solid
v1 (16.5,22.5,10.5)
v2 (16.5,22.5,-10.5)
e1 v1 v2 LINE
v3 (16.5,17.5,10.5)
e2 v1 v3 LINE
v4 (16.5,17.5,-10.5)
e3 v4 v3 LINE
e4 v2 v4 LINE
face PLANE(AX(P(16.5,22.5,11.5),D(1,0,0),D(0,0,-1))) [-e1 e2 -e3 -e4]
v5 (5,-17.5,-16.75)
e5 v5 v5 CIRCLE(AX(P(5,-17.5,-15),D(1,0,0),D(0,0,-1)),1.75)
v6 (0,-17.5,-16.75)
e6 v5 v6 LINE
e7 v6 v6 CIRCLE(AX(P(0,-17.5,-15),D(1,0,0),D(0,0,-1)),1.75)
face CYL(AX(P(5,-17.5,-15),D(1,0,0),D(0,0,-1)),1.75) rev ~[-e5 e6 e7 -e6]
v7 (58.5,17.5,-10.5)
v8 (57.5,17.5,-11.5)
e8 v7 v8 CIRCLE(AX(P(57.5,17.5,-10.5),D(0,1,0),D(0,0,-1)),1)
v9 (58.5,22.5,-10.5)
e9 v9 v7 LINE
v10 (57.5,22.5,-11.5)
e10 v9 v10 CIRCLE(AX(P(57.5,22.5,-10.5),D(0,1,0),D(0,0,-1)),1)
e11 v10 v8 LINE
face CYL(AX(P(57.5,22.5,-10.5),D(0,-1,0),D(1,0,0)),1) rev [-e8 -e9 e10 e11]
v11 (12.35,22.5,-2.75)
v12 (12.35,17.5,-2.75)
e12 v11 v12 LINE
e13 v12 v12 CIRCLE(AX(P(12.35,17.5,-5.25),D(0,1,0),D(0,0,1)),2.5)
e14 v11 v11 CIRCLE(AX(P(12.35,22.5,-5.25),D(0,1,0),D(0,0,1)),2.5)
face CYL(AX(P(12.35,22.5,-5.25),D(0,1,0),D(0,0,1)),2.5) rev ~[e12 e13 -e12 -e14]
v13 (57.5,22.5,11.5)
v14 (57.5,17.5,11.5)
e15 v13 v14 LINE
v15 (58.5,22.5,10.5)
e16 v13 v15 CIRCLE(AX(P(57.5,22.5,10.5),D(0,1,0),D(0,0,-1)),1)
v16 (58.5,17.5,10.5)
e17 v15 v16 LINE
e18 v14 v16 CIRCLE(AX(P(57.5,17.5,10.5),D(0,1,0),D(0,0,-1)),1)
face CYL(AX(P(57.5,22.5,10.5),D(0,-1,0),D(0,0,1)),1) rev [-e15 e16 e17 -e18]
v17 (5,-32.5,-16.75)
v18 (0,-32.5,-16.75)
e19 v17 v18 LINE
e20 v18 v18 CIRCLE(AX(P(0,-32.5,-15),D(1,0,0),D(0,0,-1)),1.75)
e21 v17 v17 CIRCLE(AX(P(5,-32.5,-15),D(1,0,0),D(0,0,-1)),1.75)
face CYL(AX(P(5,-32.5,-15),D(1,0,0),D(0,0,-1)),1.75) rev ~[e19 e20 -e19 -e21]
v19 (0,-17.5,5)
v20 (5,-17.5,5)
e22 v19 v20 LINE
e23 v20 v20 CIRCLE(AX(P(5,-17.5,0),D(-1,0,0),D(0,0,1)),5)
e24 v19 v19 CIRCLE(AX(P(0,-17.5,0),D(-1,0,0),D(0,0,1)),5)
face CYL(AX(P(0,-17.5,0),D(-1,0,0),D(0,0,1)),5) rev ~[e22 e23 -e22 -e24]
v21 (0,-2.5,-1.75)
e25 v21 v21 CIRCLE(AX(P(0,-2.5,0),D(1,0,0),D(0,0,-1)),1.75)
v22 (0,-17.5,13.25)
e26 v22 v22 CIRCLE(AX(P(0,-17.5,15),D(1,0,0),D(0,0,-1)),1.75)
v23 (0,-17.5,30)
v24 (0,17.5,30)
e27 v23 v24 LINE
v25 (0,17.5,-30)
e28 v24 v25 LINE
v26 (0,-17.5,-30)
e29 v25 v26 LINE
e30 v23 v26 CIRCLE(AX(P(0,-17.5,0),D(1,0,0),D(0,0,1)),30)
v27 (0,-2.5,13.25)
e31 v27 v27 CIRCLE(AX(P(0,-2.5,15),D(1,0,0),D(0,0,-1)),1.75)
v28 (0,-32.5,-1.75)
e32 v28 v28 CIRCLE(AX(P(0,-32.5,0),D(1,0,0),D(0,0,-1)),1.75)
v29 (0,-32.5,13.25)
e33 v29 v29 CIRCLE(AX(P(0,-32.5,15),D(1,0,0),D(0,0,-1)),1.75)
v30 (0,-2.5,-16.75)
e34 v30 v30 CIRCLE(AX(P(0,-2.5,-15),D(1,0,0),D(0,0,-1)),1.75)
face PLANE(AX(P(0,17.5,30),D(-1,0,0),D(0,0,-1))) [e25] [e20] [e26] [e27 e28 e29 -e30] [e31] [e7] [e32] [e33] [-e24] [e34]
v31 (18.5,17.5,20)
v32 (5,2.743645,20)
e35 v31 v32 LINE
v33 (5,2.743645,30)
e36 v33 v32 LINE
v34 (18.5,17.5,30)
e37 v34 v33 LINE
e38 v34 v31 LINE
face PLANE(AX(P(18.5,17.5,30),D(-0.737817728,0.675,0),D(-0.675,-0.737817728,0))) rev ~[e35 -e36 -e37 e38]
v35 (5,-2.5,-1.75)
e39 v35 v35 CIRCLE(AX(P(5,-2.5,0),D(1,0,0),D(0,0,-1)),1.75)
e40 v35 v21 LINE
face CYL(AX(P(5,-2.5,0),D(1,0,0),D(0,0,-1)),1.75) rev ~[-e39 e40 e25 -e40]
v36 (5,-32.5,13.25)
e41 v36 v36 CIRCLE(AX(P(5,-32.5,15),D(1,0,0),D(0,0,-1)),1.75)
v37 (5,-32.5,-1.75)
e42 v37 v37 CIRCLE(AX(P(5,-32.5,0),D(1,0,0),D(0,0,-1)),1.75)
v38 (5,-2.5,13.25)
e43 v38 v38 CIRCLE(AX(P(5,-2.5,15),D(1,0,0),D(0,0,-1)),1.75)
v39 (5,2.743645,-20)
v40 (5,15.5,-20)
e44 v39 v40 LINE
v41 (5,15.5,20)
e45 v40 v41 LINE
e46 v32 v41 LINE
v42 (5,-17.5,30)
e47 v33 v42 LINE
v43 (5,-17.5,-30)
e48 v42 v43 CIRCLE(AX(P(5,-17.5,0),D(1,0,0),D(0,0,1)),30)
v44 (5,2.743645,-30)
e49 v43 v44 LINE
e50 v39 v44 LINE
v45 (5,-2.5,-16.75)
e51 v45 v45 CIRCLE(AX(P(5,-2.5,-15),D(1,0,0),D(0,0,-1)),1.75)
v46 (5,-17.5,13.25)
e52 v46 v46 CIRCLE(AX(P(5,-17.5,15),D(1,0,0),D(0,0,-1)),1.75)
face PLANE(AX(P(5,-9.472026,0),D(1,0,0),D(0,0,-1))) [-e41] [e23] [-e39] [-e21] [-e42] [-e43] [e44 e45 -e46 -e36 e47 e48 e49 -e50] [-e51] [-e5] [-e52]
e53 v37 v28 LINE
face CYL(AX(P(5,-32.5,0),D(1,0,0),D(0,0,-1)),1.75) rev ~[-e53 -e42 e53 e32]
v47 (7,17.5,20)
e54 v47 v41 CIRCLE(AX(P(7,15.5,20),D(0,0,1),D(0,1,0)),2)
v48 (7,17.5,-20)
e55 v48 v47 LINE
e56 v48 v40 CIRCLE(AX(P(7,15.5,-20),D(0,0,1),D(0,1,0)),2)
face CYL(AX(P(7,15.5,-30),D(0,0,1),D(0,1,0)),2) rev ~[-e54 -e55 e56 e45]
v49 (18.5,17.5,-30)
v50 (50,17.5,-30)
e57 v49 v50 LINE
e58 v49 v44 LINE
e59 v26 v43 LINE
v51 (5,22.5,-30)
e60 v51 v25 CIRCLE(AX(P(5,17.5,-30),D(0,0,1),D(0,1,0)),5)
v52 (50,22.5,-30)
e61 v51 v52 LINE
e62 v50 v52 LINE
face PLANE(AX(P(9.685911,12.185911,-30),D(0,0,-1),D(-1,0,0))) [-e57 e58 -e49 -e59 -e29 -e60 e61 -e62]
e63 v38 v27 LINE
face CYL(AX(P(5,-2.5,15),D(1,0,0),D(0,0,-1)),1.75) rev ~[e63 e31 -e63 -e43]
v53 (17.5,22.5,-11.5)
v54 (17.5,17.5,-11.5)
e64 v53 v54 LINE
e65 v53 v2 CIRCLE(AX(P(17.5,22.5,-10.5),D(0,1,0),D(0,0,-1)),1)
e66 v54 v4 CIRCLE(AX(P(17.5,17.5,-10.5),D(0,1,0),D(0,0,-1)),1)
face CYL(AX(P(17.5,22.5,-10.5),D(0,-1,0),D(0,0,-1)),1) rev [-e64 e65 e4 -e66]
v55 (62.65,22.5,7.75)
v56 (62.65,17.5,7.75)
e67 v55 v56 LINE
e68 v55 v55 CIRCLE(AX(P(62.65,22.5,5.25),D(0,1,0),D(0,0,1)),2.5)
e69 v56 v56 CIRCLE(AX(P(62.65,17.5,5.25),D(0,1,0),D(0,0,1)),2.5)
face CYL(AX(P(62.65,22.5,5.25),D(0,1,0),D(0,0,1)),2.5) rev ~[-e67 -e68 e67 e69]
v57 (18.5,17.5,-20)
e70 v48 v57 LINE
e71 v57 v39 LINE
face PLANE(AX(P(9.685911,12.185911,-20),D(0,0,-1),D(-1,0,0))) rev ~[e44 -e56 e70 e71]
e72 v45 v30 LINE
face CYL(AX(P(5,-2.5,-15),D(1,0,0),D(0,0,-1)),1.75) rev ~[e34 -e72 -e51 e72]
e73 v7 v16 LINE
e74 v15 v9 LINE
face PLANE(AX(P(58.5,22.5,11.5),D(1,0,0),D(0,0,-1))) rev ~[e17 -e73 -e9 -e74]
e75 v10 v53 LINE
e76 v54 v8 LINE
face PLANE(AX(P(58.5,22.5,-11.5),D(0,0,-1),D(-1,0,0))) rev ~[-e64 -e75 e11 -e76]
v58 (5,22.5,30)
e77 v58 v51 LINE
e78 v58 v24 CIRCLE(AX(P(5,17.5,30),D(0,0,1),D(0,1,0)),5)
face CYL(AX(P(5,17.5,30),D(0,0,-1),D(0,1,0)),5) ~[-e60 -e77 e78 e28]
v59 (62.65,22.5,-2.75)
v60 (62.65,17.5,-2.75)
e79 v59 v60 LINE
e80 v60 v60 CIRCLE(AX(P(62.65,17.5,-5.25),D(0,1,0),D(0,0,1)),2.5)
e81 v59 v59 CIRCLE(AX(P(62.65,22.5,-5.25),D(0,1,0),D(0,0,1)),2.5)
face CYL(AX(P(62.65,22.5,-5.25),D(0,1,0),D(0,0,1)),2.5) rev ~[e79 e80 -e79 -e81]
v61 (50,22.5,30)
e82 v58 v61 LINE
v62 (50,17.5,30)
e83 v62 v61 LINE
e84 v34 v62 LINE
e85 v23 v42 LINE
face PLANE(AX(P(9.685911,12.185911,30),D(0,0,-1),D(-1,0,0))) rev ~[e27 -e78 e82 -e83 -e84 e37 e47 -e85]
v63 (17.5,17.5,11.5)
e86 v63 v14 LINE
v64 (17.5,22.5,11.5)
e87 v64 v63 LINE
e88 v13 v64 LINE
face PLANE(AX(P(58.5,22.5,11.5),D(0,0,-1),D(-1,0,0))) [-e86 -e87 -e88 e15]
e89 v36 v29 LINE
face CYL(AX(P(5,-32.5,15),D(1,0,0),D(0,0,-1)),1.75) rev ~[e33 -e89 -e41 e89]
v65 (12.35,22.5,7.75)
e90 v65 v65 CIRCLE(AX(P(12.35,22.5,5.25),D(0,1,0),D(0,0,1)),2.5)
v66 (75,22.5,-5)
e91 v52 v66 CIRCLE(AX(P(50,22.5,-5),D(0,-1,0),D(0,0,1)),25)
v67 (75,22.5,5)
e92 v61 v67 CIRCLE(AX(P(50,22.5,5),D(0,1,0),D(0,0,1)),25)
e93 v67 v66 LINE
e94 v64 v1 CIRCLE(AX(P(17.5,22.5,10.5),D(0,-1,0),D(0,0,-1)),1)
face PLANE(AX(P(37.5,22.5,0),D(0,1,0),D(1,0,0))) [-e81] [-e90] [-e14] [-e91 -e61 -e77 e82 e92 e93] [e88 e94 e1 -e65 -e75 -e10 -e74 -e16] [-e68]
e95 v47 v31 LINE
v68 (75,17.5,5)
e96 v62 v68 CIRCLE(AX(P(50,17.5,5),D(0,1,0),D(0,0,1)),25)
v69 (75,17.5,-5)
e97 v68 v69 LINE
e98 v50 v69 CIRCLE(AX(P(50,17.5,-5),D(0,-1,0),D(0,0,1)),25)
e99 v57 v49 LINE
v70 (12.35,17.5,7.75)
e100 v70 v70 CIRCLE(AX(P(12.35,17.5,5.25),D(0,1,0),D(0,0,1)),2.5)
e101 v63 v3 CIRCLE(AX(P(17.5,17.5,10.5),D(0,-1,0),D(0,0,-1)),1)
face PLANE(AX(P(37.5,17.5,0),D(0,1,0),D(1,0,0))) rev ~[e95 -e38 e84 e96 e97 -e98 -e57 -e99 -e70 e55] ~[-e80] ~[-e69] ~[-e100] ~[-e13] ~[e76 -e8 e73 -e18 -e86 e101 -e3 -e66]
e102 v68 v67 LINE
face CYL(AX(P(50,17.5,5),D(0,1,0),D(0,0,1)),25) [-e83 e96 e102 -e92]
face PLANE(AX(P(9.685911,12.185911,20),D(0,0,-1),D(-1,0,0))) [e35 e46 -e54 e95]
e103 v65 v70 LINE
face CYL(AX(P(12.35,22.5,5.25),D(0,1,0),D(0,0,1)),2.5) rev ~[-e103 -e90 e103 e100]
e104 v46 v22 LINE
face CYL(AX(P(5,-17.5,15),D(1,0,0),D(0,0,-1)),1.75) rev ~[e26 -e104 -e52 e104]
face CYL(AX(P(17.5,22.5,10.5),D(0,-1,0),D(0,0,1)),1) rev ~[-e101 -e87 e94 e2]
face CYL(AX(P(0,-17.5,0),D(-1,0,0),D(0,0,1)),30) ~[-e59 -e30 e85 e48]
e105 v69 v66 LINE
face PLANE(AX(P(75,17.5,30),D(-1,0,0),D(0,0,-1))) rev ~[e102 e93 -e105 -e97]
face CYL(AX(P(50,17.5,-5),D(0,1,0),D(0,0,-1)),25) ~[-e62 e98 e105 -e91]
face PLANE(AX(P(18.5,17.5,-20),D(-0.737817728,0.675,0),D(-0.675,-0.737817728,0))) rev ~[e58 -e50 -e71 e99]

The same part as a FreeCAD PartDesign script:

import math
import FreeCAD as App
import Part
import Sketcher
from FreeCAD import Vector
Q = App.Units.Quantity


def edges_at(feature, points):
    """Names of the edges that pass closest to the given points."""
    edges = feature.Shape.Edges
    near = lambda p: min(range(len(edges)), key=lambda i: edges[i].distToShape(Part.Vertex(*p))[0])
    return sorted({f"Edge{near(p) + 1}" for p in points})


def add_polygon(sketch, points):
    """Adds a closed chain of lines whose ends are joined by coincident constraints."""
    first, n = sketch.GeometryCount, len(points)
    for a, b in zip(points, points[1:] + points[:1]):
        sketch.addGeometry(Part.LineSegment(App.Vector(*a, 0), App.Vector(*b, 0)), False)
    for i in range(n):
        sketch.addConstraint(Sketcher.Constraint("Coincident", first + i, 2, first + (i + 1) % n, 1))

doc = App.newDocument("Part")
body = doc.addObject("PartDesign::Body", "Body")

sketch1 = doc.addObject("Sketcher::SketchObject", "Sketch")
body.addObject(sketch1)
sketch1.AttachmentSupport = (doc.YZ_Plane, [""])
sketch1.MapMode = "FlatFace"
sketch1.addGeometry([
    Part.ArcOfCircle(Part.Circle(Vector(-17.5, 0, 0), Vector(0, 0, 1), 30), math.radians(90), math.radians(270)),
    Part.LineSegment(Vector(-17.5, -30, 0), Vector(17.5, -30, 0)),
    Part.LineSegment(Vector(17.5, -30, 0), Vector(17.5, 30, 0)),
    Part.LineSegment(Vector(17.5, 30, 0), Vector(-17.5, 30, 0)),
], False)
sketch1.addConstraint([
    Sketcher.Constraint("Tangent", 0, 2, 1, 1),
    Sketcher.Constraint("Coincident", 1, 2, 2, 1),
    Sketcher.Constraint("Coincident", 2, 2, 3, 1),
    Sketcher.Constraint("Tangent", 3, 2, 0, 1),
    Sketcher.Constraint("Horizontal", 1),
    Sketcher.Constraint("Vertical", 2),
    Sketcher.Constraint("Horizontal", 3),
    Sketcher.Constraint("Symmetric", 0, 2, 2, 2, -1, 1),
    Sketcher.Constraint("Radius", 0, Q("30 mm")),
    Sketcher.Constraint("DistanceX", 1, 1, 1, 2, Q("35 mm")),
])
pad1 = doc.addObject("PartDesign::Pad", "Pad")
body.addObject(pad1)
pad1.Profile = sketch1
pad1.Length = 5

sketch2 = doc.addObject("Sketcher::SketchObject", "Sketch001")
body.addObject(sketch2)
sketch2.AttachmentSupport = (doc.YZ_Plane, [""])
sketch2.MapMode = "FlatFace"
sketch2.AttachmentOffset = App.Placement(Vector(0, 0, 5), App.Rotation())
sketch2.addGeometry(Part.Circle(Vector(-32.5, 15, 0), Vector(0, 0, 1), 1.75), False)
sketch2.addConstraint([
    Sketcher.Constraint("Diameter", 0, Q("3.5 mm")),
    Sketcher.Constraint("DistanceY", -1, 1, 0, 3, Q("15 mm")),
    Sketcher.Constraint("DistanceX", 0, 3, -1, 1, Q("32.5 mm")),
])
pocket1 = doc.addObject("PartDesign::Pocket", "Pocket")
body.addObject(pocket1)
pocket1.Profile = sketch2
pocket1.Type = "UpToFirst"

sketch3 = doc.addObject("Sketcher::SketchObject", "Sketch002")
body.addObject(sketch3)
sketch3.AttachmentSupport = (doc.YZ_Plane, [""])
sketch3.MapMode = "FlatFace"
sketch3.AttachmentOffset = App.Placement(Vector(0, 0, 5), App.Rotation())
sketch3.addGeometry(Part.Circle(Vector(-32.5, -15, 0), Vector(0, 0, 1), 1.75), False)
sketch3.addConstraint([
    Sketcher.Constraint("Diameter", 0, Q("3.5 mm")),
    Sketcher.Constraint("DistanceY", 0, 3, -1, 1, Q("15 mm")),
    Sketcher.Constraint("DistanceX", 0, 3, -1, 1, Q("32.5 mm")),
])
pocket2 = doc.addObject("PartDesign::Pocket", "Pocket001")
body.addObject(pocket2)
pocket2.Profile = sketch3
pocket2.Type = "UpToFirst"

sketch4 = doc.addObject("Sketcher::SketchObject", "Sketch003")
body.addObject(sketch4)
sketch4.AttachmentSupport = (doc.YZ_Plane, [""])
sketch4.MapMode = "FlatFace"
sketch4.AttachmentOffset = App.Placement(Vector(0, 0, 5), App.Rotation())
sketch4.addGeometry(Part.Circle(Vector(-2.5, 15, 0), Vector(0, 0, 1), 1.75), False)
sketch4.addConstraint([
    Sketcher.Constraint("Diameter", 0, Q("3.5 mm")),
    Sketcher.Constraint("DistanceY", -1, 1, 0, 3, Q("15 mm")),
    Sketcher.Constraint("DistanceX", 0, 3, -1, 1, Q("2.5 mm")),
])
pocket3 = doc.addObject("PartDesign::Pocket", "Pocket002")
body.addObject(pocket3)
pocket3.Profile = sketch4
pocket3.Type = "UpToFirst"

sketch5 = doc.addObject("Sketcher::SketchObject", "Sketch004")
body.addObject(sketch5)
sketch5.AttachmentSupport = (doc.YZ_Plane, [""])
sketch5.MapMode = "FlatFace"
sketch5.AttachmentOffset = App.Placement(Vector(0, 0, 5), App.Rotation())
sketch5.addGeometry(Part.Circle(Vector(-2.5, 0, 0), Vector(0, 0, 1), 1.75), False)
sketch5.addConstraint([
    Sketcher.Constraint("PointOnObject", 0, 3, -1),
    Sketcher.Constraint("Diameter", 0, Q("3.5 mm")),
    Sketcher.Constraint("DistanceX", 0, 3, -1, 1, Q("2.5 mm")),
])
pocket4 = doc.addObject("PartDesign::Pocket", "Pocket003")
body.addObject(pocket4)
pocket4.Profile = sketch5
pocket4.Type = "UpToFirst"

sketch6 = doc.addObject("Sketcher::SketchObject", "Sketch005")
body.addObject(sketch6)
sketch6.AttachmentSupport = (doc.YZ_Plane, [""])
sketch6.MapMode = "FlatFace"
sketch6.AttachmentOffset = App.Placement(Vector(0, 0, 5), App.Rotation())
sketch6.addGeometry(Part.Circle(Vector(-2.5, -15, 0), Vector(0, 0, 1), 1.75), False)
sketch6.addConstraint([
    Sketcher.Constraint("Diameter", 0, Q("3.5 mm")),
    Sketcher.Constraint("DistanceY", 0, 3, -1, 1, Q("15 mm")),
    Sketcher.Constraint("DistanceX", 0, 3, -1, 1, Q("2.5 mm")),
])
pocket5 = doc.addObject("PartDesign::Pocket", "Pocket004")
body.addObject(pocket5)
pocket5.Profile = sketch6
pocket5.Type = "UpToFirst"

sketch7 = doc.addObject("Sketcher::SketchObject", "Sketch006")
body.addObject(sketch7)
sketch7.AttachmentSupport = (doc.YZ_Plane, [""])
sketch7.MapMode = "FlatFace"
sketch7.AttachmentOffset = App.Placement(Vector(0, 0, 5), App.Rotation())
sketch7.addGeometry(Part.Circle(Vector(-32.5, 0, 0), Vector(0, 0, 1), 1.75), False)
sketch7.addConstraint([
    Sketcher.Constraint("PointOnObject", 0, 3, -1),
    Sketcher.Constraint("Diameter", 0, Q("3.5 mm")),
    Sketcher.Constraint("DistanceX", 0, 3, -1, 1, Q("32.5 mm")),
])
pocket6 = doc.addObject("PartDesign::Pocket", "Pocket005")
body.addObject(pocket6)
pocket6.Profile = sketch7
pocket6.Type = "UpToFirst"

sketch8 = doc.addObject("Sketcher::SketchObject", "Sketch007")
body.addObject(sketch8)
sketch8.AttachmentSupport = (doc.YZ_Plane, [""])
sketch8.MapMode = "FlatFace"
sketch8.AttachmentOffset = App.Placement(Vector(0, 0, 5), App.Rotation())
sketch8.addGeometry(Part.Circle(Vector(-17.5, 15, 0), Vector(0, 0, 1), 1.75), False)
sketch8.addConstraint([
    Sketcher.Constraint("Diameter", 0, Q("3.5 mm")),
    Sketcher.Constraint("DistanceY", -1, 1, 0, 3, Q("15 mm")),
    Sketcher.Constraint("DistanceX", 0, 3, -1, 1, Q("17.5 mm")),
])
pocket7 = doc.addObject("PartDesign::Pocket", "Pocket006")
body.addObject(pocket7)
pocket7.Profile = sketch8
pocket7.Type = "UpToFirst"

sketch9 = doc.addObject("Sketcher::SketchObject", "Sketch008")
body.addObject(sketch9)
sketch9.AttachmentSupport = (doc.YZ_Plane, [""])
sketch9.MapMode = "FlatFace"
sketch9.AttachmentOffset = App.Placement(Vector(0, 0, 5), App.Rotation())
sketch9.addGeometry(Part.Circle(Vector(-17.5, -15, 0), Vector(0, 0, 1), 1.75), False)
sketch9.addConstraint([
    Sketcher.Constraint("Diameter", 0, Q("3.5 mm")),
    Sketcher.Constraint("DistanceY", 0, 3, -1, 1, Q("15 mm")),
    Sketcher.Constraint("DistanceX", 0, 3, -1, 1, Q("17.5 mm")),
])
pocket8 = doc.addObject("PartDesign::Pocket", "Pocket007")
body.addObject(pocket8)
pocket8.Profile = sketch9
pocket8.Type = "UpToFirst"

sketch10 = doc.addObject("Sketcher::SketchObject", "Sketch009")
body.addObject(sketch10)
sketch10.AttachmentSupport = (doc.XZ_Plane, [""])
sketch10.MapMode = "FlatFace"
sketch10.AttachmentOffset = App.Placement(Vector(0, 0, -17.5), App.Rotation())
add_polygon(sketch10, [(0, -30), (0, 30), (75, 30), (75, -30)])
sketch10.addConstraint([
    Sketcher.Constraint("Vertical", 0),
    Sketcher.Constraint("Horizontal", 1),
    Sketcher.Constraint("Vertical", 2),
    Sketcher.Constraint("Horizontal", 3),
    Sketcher.Constraint("Symmetric", 0, 2, 3, 2, -1, 1),
    Sketcher.Constraint("DistanceX", 1, 1, 1, 2, Q("75 mm")),
    Sketcher.Constraint("DistanceY", 0, 1, 0, 2, Q("60 mm")),
])
pad2 = doc.addObject("PartDesign::Pad", "Pad001")
body.addObject(pad2)
pad2.Profile = sketch10
pad2.Length = 5
pad2.Reversed = True

sketch11 = doc.addObject("Sketcher::SketchObject", "Sketch010")
body.addObject(sketch11)
sketch11.AttachmentSupport = (doc.XZ_Plane, [""])
sketch11.MapMode = "FlatFace"
sketch11.AttachmentOffset = App.Placement(Vector(0, 0, -22.5), App.Rotation())
sketch11.addGeometry(Part.Circle(Vector(12.35, 5.25, 0), Vector(0, 0, 1), 2.5), False)
sketch11.addConstraint([
    Sketcher.Constraint("Diameter", 0, Q("5 mm")),
    Sketcher.Constraint("DistanceX", -1, 1, 0, 3, Q("12.35 mm")),
    Sketcher.Constraint("DistanceY", -1, 1, 0, 3, Q("5.25 mm")),
])
pocket9 = doc.addObject("PartDesign::Pocket", "Pocket008")
body.addObject(pocket9)
pocket9.Profile = sketch11
pocket9.Type = "UpToFirst"
pocket9.Reversed = True

sketch12 = doc.addObject("Sketcher::SketchObject", "Sketch011")
body.addObject(sketch12)
sketch12.AttachmentSupport = (doc.XZ_Plane, [""])
sketch12.MapMode = "FlatFace"
sketch12.AttachmentOffset = App.Placement(Vector(0, 0, -22.5), App.Rotation())
sketch12.addGeometry(Part.Circle(Vector(12.35, -5.25, 0), Vector(0, 0, 1), 2.5), False)
sketch12.addConstraint([
    Sketcher.Constraint("Diameter", 0, Q("5 mm")),
    Sketcher.Constraint("DistanceX", -1, 1, 0, 3, Q("12.35 mm")),
    Sketcher.Constraint("DistanceY", 0, 3, -1, 1, Q("5.25 mm")),
])
pocket10 = doc.addObject("PartDesign::Pocket", "Pocket009")
body.addObject(pocket10)
pocket10.Profile = sketch12
pocket10.Type = "UpToFirst"
pocket10.Reversed = True

sketch13 = doc.addObject("Sketcher::SketchObject", "Sketch012")
body.addObject(sketch13)
sketch13.AttachmentSupport = (doc.XZ_Plane, [""])
sketch13.MapMode = "FlatFace"
sketch13.AttachmentOffset = App.Placement(Vector(0, 0, -22.5), App.Rotation())
sketch13.addGeometry(Part.Circle(Vector(62.65, -5.25, 0), Vector(0, 0, 1), 2.5), False)
sketch13.addConstraint([
    Sketcher.Constraint("Diameter", 0, Q("5 mm")),
    Sketcher.Constraint("DistanceX", -1, 1, 0, 3, Q("62.65 mm")),
    Sketcher.Constraint("DistanceY", 0, 3, -1, 1, Q("5.25 mm")),
])
pocket11 = doc.addObject("PartDesign::Pocket", "Pocket010")
body.addObject(pocket11)
pocket11.Profile = sketch13
pocket11.Type = "UpToFirst"
pocket11.Reversed = True

sketch14 = doc.addObject("Sketcher::SketchObject", "Sketch013")
body.addObject(sketch14)
sketch14.AttachmentSupport = (doc.XZ_Plane, [""])
sketch14.MapMode = "FlatFace"
sketch14.AttachmentOffset = App.Placement(Vector(0, 0, -22.5), App.Rotation())
sketch14.addGeometry(Part.Circle(Vector(62.65, 5.25, 0), Vector(0, 0, 1), 2.5), False)
sketch14.addConstraint([
    Sketcher.Constraint("Diameter", 0, Q("5 mm")),
    Sketcher.Constraint("DistanceX", -1, 1, 0, 3, Q("62.65 mm")),
    Sketcher.Constraint("DistanceY", -1, 1, 0, 3, Q("5.25 mm")),
])
pocket12 = doc.addObject("PartDesign::Pocket", "Pocket011")
body.addObject(pocket12)
pocket12.Profile = sketch14
pocket12.Type = "UpToFirst"
pocket12.Reversed = True

sketch15 = doc.addObject("Sketcher::SketchObject", "Sketch014")
body.addObject(sketch15)
sketch15.AttachmentSupport = (doc.XZ_Plane, [""])
sketch15.MapMode = "FlatFace"
sketch15.AttachmentOffset = App.Placement(Vector(0, 0, -22.5), App.Rotation())
add_polygon(sketch15, [(16.5, 11.5), (58.5, 11.5), (58.5, -11.5), (16.5, -11.5)])
sketch15.addConstraint([
    Sketcher.Constraint("Horizontal", 0),
    Sketcher.Constraint("Vertical", 1),
    Sketcher.Constraint("Horizontal", 2),
    Sketcher.Constraint("Vertical", 3),
    Sketcher.Constraint("DistanceX", 0, 1, 0, 2, Q("42 mm")),
    Sketcher.Constraint("DistanceY", 1, 2, 1, 1, Q("23 mm")),
    Sketcher.Constraint("DistanceX", -1, 1, 0, 2, Q("58.5 mm")),
    Sketcher.Constraint("DistanceY", -1, 1, 0, 2, Q("11.5 mm")),
])
pocket13 = doc.addObject("PartDesign::Pocket", "Pocket012")
body.addObject(pocket13)
pocket13.Profile = sketch15
pocket13.Type = "UpToFirst"
pocket13.Reversed = True
doc.recompute()

fillet = doc.addObject("PartDesign::Fillet", "Fillet")
body.addObject(fillet)
fillet.Base = (pocket13, edges_at(pocket13, [(75, 20, 30), (75, 20, -30)]))
fillet.Radius = 25
doc.recompute()

fillet2 = doc.addObject("PartDesign::Fillet", "Fillet001")
body.addObject(fillet2)
fillet2.Base = (fillet, edges_at(fillet, [(0, 22.5, 0)]))
fillet2.Radius = 5
doc.recompute()

fillet3 = doc.addObject("PartDesign::Fillet", "Fillet002")
body.addObject(fillet3)
fillet3.Base = (fillet2, edges_at(fillet2, [(5, 17.5, 0)]))
fillet3.Radius = 2
doc.recompute()

fillet4 = doc.addObject("PartDesign::Fillet", "Fillet003")
body.addObject(fillet4)
fillet4.Base = (fillet3, edges_at(fillet3, [
    (58.5, 20, -11.5),
    (58.5, 20, 11.5),
    (16.5, 20, 11.5),
    (16.5, 20, -11.5),
]))
fillet4.Radius = 1

sketch16 = doc.addObject("Sketcher::SketchObject", "Sketch015")
body.addObject(sketch16)
sketch16.AttachmentSupport = (doc.XY_Plane, [""])
sketch16.MapMode = "FlatFace"
sketch16.AttachmentOffset = App.Placement(Vector(0, 0, 30), App.Rotation())
add_polygon(sketch16, [(5, 2.743645), (18.5, 17.5), (5, 17.5)])
sketch16.addConstraint([
    Sketcher.Constraint("Horizontal", 1),
    Sketcher.Constraint("Vertical", 2),
    Sketcher.Constraint("Distance", 0, Q("20 mm")),
    Sketcher.Constraint("DistanceX", 1, 2, 1, 1, Q("13.5 mm")),
    Sketcher.Constraint("DistanceX", -1, 1, 1, 2, Q("5 mm")),
    Sketcher.Constraint("DistanceY", -1, 1, 0, 2, Q("17.5 mm")),
])
pad3 = doc.addObject("PartDesign::Pad", "Pad002")
body.addObject(pad3)
pad3.Profile = sketch16
pad3.Length = 10
pad3.Reversed = True
doc.recompute()

linearpattern = doc.addObject("PartDesign::LinearPattern", "LinearPattern")
body.addObject(linearpattern)
linearpattern.Originals = [pad3]
linearpattern.Direction = (doc.Z_Axis, [""])
linearpattern.Mode = "offset"
linearpattern.Offset = 50
linearpattern.Occurrences = 2
linearpattern.Reversed = True
body.Tip = linearpattern

sketch17 = doc.addObject("Sketcher::SketchObject", "Sketch016")
body.addObject(sketch17)
sketch17.AttachmentSupport = (doc.YZ_Plane, [""])
sketch17.MapMode = "FlatFace"
sketch17.addGeometry(Part.Circle(Vector(-17.5, 0, 0), Vector(0, 0, 1), 5), False)
sketch17.addConstraint([
    Sketcher.Constraint("PointOnObject", 0, 3, -1),
    Sketcher.Constraint("Diameter", 0, Q("10 mm")),
    Sketcher.Constraint("DistanceX", 0, 3, -1, 1, Q("17.5 mm")),
])
pocket14 = doc.addObject("PartDesign::Pocket", "Pocket013")
body.addObject(pocket14)
pocket14.Profile = sketch17
pocket14.Type = "UpToFirst"
pocket14.Reversed = True

doc.recompute()
